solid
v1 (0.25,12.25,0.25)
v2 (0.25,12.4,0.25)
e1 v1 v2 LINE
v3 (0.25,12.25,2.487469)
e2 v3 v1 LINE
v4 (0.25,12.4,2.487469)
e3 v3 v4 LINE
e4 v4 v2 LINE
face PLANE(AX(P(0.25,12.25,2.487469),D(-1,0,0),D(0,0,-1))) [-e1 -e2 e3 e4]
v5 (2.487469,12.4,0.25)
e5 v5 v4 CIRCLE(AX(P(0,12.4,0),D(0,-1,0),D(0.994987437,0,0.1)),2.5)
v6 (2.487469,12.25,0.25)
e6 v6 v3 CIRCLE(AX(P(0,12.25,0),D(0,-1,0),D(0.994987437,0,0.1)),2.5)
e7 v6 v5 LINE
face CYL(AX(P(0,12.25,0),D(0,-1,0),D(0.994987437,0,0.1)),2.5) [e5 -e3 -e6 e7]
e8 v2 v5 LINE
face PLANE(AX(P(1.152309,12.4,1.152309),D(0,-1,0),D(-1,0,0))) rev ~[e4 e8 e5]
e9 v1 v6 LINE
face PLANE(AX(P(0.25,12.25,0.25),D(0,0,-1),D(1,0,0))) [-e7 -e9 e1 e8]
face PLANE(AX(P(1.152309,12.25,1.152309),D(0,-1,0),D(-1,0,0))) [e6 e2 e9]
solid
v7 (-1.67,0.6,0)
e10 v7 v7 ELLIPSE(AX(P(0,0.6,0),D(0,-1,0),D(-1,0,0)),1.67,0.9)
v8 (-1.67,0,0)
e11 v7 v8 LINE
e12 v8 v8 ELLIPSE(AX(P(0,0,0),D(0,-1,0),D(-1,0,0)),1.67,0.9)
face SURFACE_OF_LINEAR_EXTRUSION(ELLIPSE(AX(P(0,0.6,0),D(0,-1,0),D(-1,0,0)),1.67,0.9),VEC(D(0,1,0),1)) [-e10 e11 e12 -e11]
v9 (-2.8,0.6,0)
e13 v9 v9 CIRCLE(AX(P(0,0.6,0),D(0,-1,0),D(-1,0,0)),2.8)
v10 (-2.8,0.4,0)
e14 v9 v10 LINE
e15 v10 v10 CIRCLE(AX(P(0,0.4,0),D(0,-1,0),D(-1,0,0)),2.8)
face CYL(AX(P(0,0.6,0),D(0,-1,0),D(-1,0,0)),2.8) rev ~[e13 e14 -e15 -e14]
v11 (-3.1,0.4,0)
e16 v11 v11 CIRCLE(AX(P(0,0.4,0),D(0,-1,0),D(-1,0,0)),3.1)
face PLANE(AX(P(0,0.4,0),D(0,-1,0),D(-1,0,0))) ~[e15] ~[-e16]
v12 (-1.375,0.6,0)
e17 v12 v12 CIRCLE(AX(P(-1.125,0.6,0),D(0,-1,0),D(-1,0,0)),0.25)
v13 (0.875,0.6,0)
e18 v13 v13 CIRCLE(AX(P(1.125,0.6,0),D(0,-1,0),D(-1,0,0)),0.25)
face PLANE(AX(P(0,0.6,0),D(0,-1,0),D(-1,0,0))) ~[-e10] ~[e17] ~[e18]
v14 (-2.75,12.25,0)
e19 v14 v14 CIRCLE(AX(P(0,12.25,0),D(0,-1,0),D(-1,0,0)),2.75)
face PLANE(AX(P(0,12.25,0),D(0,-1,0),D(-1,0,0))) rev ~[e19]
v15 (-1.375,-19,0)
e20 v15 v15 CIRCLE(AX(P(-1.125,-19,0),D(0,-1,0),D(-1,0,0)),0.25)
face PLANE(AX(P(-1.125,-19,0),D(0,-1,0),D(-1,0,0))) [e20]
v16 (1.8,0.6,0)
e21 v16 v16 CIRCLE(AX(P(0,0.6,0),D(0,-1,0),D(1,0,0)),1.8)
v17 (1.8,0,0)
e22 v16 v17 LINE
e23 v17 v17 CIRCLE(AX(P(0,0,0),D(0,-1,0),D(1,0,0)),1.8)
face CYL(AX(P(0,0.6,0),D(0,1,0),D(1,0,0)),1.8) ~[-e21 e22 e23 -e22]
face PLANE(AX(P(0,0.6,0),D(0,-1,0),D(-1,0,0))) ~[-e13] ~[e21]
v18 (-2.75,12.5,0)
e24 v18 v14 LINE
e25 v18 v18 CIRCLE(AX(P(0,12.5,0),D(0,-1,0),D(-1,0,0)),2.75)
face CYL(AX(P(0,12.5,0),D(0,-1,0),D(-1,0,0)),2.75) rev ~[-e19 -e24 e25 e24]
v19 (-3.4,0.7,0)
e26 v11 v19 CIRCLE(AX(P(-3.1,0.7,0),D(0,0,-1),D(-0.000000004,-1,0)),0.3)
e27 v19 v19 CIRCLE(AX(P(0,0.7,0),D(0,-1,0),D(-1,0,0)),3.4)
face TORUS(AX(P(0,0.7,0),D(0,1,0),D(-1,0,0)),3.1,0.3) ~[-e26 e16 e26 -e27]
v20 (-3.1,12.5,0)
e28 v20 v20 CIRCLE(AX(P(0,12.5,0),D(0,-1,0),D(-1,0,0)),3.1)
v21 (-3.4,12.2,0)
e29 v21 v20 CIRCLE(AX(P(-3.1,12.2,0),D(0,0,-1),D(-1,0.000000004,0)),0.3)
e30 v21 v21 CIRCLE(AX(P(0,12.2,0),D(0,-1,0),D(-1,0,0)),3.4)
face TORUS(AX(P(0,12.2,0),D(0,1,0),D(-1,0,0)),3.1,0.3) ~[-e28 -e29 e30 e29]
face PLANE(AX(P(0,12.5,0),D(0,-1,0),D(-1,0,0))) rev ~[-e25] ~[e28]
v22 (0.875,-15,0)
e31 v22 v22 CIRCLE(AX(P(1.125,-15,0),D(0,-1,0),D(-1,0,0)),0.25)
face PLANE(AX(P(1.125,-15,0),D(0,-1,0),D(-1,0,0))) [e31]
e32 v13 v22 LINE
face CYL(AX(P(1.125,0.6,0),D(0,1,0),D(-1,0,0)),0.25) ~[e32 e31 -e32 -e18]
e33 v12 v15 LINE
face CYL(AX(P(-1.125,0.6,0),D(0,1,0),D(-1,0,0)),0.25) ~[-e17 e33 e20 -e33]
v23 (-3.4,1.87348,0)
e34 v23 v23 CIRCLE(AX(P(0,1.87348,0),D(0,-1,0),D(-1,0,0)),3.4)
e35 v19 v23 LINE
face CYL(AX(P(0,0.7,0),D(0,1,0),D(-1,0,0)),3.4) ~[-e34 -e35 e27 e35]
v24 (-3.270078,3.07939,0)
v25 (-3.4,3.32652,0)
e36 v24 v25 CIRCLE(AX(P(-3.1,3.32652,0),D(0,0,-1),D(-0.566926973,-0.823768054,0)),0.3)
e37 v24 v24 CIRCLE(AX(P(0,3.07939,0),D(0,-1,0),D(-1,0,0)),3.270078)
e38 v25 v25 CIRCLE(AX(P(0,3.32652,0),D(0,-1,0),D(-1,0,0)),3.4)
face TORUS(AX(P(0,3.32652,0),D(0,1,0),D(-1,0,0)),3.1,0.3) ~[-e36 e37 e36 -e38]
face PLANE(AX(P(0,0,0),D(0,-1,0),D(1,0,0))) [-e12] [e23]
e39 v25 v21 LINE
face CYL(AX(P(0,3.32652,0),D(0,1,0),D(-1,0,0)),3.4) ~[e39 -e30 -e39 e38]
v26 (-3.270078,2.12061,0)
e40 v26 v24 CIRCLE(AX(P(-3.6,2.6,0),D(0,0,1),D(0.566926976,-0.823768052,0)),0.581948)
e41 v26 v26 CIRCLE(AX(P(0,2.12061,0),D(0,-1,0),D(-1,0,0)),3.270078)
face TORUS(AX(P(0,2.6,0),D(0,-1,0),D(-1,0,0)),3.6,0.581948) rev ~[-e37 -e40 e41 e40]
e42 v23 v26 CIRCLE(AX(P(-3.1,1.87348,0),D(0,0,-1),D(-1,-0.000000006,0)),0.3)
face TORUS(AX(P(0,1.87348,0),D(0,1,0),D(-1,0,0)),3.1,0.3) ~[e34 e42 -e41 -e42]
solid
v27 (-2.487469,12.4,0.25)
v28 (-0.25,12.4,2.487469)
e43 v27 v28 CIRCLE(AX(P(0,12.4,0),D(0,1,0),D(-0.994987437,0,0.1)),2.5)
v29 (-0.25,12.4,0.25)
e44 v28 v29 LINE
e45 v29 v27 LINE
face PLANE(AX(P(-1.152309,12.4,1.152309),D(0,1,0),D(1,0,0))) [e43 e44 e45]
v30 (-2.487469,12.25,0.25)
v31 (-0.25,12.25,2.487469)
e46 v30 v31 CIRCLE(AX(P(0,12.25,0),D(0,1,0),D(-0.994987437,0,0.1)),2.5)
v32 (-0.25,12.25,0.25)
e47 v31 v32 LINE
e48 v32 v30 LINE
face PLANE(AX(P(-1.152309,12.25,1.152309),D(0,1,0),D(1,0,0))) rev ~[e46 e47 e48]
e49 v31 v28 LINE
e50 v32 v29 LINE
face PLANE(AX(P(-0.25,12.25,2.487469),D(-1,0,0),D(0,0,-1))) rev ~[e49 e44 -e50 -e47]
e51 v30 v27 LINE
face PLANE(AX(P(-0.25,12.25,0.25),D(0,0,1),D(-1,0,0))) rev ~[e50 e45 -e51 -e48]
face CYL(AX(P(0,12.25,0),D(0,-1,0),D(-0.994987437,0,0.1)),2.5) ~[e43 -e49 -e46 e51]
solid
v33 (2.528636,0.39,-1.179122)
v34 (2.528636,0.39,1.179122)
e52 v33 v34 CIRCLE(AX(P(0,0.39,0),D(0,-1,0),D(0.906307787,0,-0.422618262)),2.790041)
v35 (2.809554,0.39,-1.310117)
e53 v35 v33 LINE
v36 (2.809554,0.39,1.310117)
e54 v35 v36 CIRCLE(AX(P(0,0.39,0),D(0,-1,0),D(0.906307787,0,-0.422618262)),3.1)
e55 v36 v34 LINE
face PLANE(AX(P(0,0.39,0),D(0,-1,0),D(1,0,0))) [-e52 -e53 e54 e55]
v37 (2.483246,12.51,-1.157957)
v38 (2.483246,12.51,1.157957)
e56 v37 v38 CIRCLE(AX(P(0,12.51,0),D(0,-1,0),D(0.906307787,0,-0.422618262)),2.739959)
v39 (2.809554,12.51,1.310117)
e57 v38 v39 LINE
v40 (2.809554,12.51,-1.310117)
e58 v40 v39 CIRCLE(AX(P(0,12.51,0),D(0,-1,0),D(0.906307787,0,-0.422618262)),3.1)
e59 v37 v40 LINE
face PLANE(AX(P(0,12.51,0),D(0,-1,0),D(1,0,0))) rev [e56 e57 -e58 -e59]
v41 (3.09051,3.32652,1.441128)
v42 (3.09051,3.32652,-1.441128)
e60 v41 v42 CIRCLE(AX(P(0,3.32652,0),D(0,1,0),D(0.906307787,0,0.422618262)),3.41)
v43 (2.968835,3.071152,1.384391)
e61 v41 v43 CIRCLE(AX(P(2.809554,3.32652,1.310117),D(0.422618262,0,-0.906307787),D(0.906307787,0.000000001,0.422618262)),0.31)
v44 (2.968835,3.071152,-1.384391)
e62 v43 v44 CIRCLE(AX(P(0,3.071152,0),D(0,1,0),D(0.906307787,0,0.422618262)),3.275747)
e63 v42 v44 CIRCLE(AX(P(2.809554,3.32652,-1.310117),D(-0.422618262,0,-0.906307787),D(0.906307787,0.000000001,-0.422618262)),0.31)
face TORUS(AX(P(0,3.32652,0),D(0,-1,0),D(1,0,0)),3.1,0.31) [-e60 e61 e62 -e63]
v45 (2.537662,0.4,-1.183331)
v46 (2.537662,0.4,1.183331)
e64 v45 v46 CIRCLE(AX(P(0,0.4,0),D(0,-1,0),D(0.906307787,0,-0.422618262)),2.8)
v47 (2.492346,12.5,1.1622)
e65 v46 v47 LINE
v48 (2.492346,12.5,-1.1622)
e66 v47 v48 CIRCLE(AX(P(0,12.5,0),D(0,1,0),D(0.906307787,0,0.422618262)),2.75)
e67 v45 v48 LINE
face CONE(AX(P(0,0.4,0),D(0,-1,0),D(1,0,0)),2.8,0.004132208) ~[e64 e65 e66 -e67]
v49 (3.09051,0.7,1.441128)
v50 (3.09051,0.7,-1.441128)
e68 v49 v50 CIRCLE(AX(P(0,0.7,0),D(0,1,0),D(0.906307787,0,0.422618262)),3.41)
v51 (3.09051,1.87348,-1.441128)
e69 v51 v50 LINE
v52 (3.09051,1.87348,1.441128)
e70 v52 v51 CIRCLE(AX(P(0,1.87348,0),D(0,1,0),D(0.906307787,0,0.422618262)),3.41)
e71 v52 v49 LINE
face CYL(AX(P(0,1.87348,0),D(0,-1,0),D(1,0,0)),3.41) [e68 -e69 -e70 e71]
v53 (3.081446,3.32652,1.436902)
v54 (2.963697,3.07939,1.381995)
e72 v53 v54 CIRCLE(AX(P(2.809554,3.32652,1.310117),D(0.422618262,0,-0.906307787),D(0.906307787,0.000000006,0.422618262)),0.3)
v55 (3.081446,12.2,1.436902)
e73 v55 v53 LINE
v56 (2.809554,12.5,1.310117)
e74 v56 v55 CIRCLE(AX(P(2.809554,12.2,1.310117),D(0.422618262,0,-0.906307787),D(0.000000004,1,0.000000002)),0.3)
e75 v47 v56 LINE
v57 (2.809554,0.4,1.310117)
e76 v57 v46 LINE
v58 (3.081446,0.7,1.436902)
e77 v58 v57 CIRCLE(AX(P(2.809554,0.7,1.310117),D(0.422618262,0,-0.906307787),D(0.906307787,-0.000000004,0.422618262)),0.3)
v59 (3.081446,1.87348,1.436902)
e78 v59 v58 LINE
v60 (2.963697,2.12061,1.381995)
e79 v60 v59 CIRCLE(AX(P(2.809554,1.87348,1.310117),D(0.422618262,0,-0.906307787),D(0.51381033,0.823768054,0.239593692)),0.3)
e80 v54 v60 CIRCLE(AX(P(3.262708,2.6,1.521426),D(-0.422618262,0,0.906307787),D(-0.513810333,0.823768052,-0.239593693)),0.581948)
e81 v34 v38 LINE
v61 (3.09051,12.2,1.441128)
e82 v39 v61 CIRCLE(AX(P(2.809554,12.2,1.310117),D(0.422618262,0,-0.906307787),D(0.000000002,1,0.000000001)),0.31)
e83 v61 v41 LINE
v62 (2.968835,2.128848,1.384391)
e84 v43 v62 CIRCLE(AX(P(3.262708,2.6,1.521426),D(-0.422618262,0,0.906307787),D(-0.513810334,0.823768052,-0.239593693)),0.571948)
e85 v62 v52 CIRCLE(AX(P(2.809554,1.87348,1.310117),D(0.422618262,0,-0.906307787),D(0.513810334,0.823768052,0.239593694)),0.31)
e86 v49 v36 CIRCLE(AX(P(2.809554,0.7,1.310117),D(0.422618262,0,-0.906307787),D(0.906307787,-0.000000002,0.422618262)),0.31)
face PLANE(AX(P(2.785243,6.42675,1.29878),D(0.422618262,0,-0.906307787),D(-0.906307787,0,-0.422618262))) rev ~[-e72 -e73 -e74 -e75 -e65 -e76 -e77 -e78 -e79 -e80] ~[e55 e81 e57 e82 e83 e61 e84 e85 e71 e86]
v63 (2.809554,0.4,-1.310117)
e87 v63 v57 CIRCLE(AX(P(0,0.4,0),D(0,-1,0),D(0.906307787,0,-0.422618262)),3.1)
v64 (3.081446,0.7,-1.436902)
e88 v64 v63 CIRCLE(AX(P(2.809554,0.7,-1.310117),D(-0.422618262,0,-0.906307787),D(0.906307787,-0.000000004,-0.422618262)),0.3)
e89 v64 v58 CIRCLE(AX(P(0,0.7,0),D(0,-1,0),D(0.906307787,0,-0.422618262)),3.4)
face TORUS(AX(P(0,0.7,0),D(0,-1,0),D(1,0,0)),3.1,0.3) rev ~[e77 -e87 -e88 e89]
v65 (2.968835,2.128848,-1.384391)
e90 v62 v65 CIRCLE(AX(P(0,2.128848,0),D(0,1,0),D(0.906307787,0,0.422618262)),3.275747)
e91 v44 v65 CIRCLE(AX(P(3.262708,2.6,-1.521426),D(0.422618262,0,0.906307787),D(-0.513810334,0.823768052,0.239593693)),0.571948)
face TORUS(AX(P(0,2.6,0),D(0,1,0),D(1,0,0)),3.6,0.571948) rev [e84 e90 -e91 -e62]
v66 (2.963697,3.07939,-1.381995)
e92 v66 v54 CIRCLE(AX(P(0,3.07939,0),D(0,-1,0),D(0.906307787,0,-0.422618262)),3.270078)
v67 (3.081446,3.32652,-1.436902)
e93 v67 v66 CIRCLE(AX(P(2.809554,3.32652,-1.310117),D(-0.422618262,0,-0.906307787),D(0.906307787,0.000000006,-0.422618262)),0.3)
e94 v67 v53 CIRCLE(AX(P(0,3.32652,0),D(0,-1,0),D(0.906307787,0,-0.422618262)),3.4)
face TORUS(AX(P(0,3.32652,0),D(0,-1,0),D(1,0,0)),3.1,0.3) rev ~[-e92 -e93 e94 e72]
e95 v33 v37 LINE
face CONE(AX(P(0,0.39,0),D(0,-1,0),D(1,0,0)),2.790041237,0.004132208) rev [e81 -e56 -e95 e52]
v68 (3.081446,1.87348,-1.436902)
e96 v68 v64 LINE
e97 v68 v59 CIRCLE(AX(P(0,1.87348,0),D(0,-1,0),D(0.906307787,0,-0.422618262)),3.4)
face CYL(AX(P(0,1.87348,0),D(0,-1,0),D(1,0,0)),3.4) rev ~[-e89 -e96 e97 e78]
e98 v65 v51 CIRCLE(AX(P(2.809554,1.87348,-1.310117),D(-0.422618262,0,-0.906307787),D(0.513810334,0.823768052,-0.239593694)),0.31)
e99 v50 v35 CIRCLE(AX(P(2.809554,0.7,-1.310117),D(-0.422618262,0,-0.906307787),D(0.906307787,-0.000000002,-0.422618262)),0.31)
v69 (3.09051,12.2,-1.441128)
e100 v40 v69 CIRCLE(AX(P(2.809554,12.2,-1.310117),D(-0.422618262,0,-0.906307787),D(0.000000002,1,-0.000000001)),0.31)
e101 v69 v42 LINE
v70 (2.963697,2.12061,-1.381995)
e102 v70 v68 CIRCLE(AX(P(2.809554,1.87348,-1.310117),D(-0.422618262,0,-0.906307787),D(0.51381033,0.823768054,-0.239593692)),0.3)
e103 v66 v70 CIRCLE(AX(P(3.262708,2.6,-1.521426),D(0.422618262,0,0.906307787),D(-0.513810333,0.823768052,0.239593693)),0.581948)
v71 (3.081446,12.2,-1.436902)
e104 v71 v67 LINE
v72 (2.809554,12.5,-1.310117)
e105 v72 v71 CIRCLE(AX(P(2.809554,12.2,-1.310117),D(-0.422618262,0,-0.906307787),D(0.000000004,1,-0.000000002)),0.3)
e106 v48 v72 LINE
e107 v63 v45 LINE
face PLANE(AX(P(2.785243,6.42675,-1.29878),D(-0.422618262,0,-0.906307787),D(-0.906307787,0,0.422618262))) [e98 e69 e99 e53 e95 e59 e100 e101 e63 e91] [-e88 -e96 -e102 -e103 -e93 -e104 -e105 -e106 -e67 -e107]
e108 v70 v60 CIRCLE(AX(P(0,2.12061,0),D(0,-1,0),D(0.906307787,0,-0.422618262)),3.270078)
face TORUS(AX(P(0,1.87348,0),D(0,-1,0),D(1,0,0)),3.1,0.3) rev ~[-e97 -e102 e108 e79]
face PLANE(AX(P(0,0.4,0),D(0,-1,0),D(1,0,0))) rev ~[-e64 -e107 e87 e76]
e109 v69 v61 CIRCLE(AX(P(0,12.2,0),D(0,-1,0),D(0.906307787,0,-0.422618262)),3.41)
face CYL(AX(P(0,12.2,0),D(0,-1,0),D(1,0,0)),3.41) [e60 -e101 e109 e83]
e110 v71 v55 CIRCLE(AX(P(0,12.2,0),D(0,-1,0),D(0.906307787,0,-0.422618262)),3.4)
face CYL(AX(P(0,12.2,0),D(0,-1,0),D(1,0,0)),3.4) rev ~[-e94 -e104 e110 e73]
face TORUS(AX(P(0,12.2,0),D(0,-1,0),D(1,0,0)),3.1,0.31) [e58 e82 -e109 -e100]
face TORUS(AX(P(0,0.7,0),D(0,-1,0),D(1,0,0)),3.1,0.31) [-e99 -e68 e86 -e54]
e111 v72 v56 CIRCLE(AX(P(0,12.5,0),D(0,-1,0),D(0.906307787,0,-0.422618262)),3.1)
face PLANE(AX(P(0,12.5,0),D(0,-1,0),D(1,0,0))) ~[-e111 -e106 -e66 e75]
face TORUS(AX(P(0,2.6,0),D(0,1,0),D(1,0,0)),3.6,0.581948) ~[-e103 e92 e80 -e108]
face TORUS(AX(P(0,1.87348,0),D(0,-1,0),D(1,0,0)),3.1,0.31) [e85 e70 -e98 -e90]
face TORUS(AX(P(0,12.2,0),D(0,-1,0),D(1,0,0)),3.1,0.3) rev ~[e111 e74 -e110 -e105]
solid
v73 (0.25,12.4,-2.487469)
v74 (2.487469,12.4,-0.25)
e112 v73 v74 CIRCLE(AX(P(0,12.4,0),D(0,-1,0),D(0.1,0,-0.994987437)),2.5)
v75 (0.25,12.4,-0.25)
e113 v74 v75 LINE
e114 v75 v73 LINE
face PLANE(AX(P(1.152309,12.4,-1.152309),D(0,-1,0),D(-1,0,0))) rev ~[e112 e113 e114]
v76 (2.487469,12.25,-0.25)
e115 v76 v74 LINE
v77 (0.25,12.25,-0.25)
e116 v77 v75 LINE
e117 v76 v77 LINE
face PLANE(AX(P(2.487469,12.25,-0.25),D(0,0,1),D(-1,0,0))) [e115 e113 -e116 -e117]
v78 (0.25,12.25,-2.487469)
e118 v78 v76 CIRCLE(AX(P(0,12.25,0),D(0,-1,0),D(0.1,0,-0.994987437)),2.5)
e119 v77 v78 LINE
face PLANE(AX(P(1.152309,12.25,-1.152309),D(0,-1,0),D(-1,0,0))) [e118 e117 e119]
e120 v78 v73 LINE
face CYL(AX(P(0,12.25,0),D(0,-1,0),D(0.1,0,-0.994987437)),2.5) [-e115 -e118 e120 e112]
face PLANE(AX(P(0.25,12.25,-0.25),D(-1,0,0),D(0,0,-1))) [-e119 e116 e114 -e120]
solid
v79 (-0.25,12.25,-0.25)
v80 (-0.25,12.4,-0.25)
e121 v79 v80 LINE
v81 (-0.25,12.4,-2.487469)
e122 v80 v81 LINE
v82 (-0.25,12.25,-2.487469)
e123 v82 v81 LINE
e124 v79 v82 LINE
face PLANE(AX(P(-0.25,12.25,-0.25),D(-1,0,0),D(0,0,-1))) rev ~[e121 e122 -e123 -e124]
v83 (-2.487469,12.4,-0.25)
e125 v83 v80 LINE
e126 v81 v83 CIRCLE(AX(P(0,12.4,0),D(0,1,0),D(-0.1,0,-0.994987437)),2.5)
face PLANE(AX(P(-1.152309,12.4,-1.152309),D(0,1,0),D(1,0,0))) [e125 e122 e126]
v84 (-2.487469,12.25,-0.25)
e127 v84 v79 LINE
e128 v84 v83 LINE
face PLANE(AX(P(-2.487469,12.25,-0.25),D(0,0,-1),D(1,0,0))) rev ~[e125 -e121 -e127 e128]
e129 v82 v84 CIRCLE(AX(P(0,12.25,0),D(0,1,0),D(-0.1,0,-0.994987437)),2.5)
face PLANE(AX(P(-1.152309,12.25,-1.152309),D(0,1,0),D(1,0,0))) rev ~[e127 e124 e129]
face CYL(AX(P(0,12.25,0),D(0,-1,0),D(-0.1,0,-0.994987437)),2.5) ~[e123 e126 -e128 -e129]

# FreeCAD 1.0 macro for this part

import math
import FreeCAD as App
import Part
import Sketcher
from FreeCAD import Vector
Q = App.Units.Quantity

doc = App.newDocument("Part")
body = doc.addObject("PartDesign::Body", "Body")

sketch1 = body.newObject("Sketcher::SketchObject", "Sketch")
sketch1.AttachmentSupport = (doc.getObject("XY_Plane"), [""])
sketch1.MapMode = "FlatFace"
sketch1.addGeometry(Part.LineSegment(Vector(0, 0.6, 0), Vector(2.8, 0.6, 0)), False)
sketch1.addGeometry(Part.LineSegment(Vector(2.8, 0.6, 0), Vector(2.8, 0.4, 0)), False)
sketch1.addGeometry(Part.LineSegment(Vector(2.8, 0.4, 0), Vector(3.1, 0.4, 0)), False)
sketch1.addGeometry(Part.ArcOfCircle(Part.Circle(Vector(3.1, 0.7, 0), Vector(0, 0, 1), 0.3), math.radians(-90), math.radians(0)), False)
sketch1.addGeometry(Part.LineSegment(Vector(3.4, 0.7, 0), Vector(3.4, 1.87, 0)), False)
sketch1.addGeometry(Part.ArcOfCircle(Part.Circle(Vector(3.1, 1.87, 0), Vector(0, 0, 1), 0.3), math.radians(0), math.radians(55)), False)
sketch1.addGeometry(Part.ArcOfCircle(Part.Circle(Vector(3.6, 2.6, 0), Vector(0, 0, 1), 0.58), math.radians(125), math.radians(235)), False)
sketch1.addGeometry(Part.ArcOfCircle(Part.Circle(Vector(3.1, 3.33, 0), Vector(0, 0, 1), 0.3), math.radians(-55), math.radians(0)), False)
sketch1.addGeometry(Part.LineSegment(Vector(3.4, 3.33, 0), Vector(3.4, 12.2, 0)), False)
sketch1.addGeometry(Part.ArcOfCircle(Part.Circle(Vector(3.1, 12.2, 0), Vector(0, 0, 1), 0.3), math.radians(0), math.radians(90)), False)
sketch1.addGeometry(Part.LineSegment(Vector(3.1, 12.5, 0), Vector(2.75, 12.5, 0)), False)
sketch1.addGeometry(Part.LineSegment(Vector(2.75, 12.5, 0), Vector(2.75, 12.25, 0)), False)
sketch1.addGeometry(Part.LineSegment(Vector(2.75, 12.25, 0), Vector(0, 12.25, 0)), False)
sketch1.addGeometry(Part.LineSegment(Vector(0, 12.25, 0), Vector(0, 0.6, 0)), False)
sketch1.addConstraint(Sketcher.Constraint("Coincident", 0, 2, 1, 1))
sketch1.addConstraint(Sketcher.Constraint("Coincident", 1, 2, 2, 1))
sketch1.addConstraint(Sketcher.Constraint("Tangent", 2, 2, 3, 1))
sketch1.addConstraint(Sketcher.Constraint("Tangent", 3, 2, 4, 1))
sketch1.addConstraint(Sketcher.Constraint("Tangent", 4, 2, 5, 1))
sketch1.addConstraint(Sketcher.Constraint("Tangent", 5, 2, 6, 2))
sketch1.addConstraint(Sketcher.Constraint("Tangent", 6, 1, 7, 1))
sketch1.addConstraint(Sketcher.Constraint("Tangent", 7, 2, 8, 1))
sketch1.addConstraint(Sketcher.Constraint("Tangent", 8, 2, 9, 1))
sketch1.addConstraint(Sketcher.Constraint("Tangent", 9, 2, 10, 1))
sketch1.addConstraint(Sketcher.Constraint("Coincident", 10, 2, 11, 1))
sketch1.addConstraint(Sketcher.Constraint("Coincident", 11, 2, 12, 1))
sketch1.addConstraint(Sketcher.Constraint("Coincident", 12, 2, 13, 1))
sketch1.addConstraint(Sketcher.Constraint("Coincident", 13, 2, 0, 1))
sketch1.addConstraint(Sketcher.Constraint("Horizontal", 0))
sketch1.addConstraint(Sketcher.Constraint("Vertical", 1))
sketch1.addConstraint(Sketcher.Constraint("Horizontal", 2))
sketch1.addConstraint(Sketcher.Constraint("Vertical", 4))
sketch1.addConstraint(Sketcher.Constraint("Vertical", 8))
sketch1.addConstraint(Sketcher.Constraint("Horizontal", 10))
sketch1.addConstraint(Sketcher.Constraint("Vertical", 11))
sketch1.addConstraint(Sketcher.Constraint("Horizontal", 12))
sketch1.addConstraint(Sketcher.Constraint("Vertical", 13))
sketch1.addConstraint(Sketcher.Constraint("Equal", 3, 5))
sketch1.addConstraint(Sketcher.Constraint("Equal", 5, 7))
sketch1.addConstraint(Sketcher.Constraint("Equal", 7, 9))
sketch1.addConstraint(Sketcher.Constraint("PointOnObject", 12, 2, -2))
sketch1.addConstraint(Sketcher.Constraint("Vertical", 5, 3, 7, 3))
sketch1.addConstraint(Sketcher.Constraint("Radius", 3, Q("0.3 mm")))
sketch1.addConstraint(Sketcher.Constraint("DistanceX", 0, 1, 0, 2, Q("2.8 mm")))
sketch1.addConstraint(Sketcher.Constraint("DistanceX", 2, 1, 2, 2, Q("0.3 mm")))
sketch1.addConstraint(Sketcher.Constraint("DistanceY", 1, 2, 1, 1, Q("0.2 mm")))
sketch1.addConstraint(Sketcher.Constraint("DistanceY", 0, 2, 6, 3, Q("2 mm")))
sketch1.addConstraint(Sketcher.Constraint("DistanceX", 10, 2, 10, 1, Q("0.35 mm")))
sketch1.addConstraint(Sketcher.Constraint("DistanceY", 11, 2, 11, 1, Q("0.25 mm")))
sketch1.addConstraint(Sketcher.Constraint("DistanceY", 13, 2, 13, 1, Q("11.65 mm")))
sketch1.addConstraint(Sketcher.Constraint("DistanceY", -1, 1, 3, 3, Q("0.7 mm")))
sketch1.addConstraint(Sketcher.Constraint("DistanceX", -1, 1, 6, 3, Q("3.6 mm")))
sketch1.addConstraint(Sketcher.Constraint("Radius", 6, Q("0.581948 mm")))
revolution = body.newObject("PartDesign::Revolution", "Revolution")
revolution.Profile = sketch1
revolution.ReferenceAxis = (sketch1, ["V_Axis"])
revolution.Angle = 360
body2 = doc.addObject("PartDesign::Body", "Body001")

sketch2 = body2.newObject("Sketcher::SketchObject", "Sketch001")
sketch2.AttachmentSupport = (doc.getObject("XZ_Plane001"), [""])
sketch2.MapMode = "FlatFace"
sketch2.AttachmentOffset = App.Placement(Vector(0, 0, -12.25), App.Rotation())
sketch2.addGeometry(Part.LineSegment(Vector(-0.2, -0.2, 0), Vector(-0.2, -2.5, 0)), False)
sketch2.addGeometry(Part.ArcOfCircle(Part.Circle(Vector(0, 0, 0), Vector(0, 0, 1), 2.5), math.radians(-174), math.radians(-96)), False)
sketch2.addGeometry(Part.LineSegment(Vector(-2.5, -0.2, 0), Vector(-0.2, -0.2, 0)), False)
sketch2.addConstraint(Sketcher.Constraint("Coincident", 0, 2, 1, 2))
sketch2.addConstraint(Sketcher.Constraint("Coincident", 1, 1, 2, 1))
sketch2.addConstraint(Sketcher.Constraint("Coincident", 2, 2, 0, 1))
sketch2.addConstraint(Sketcher.Constraint("Vertical", 0))
sketch2.addConstraint(Sketcher.Constraint("Horizontal", 2))
sketch2.addConstraint(Sketcher.Constraint("Coincident", 1, 3, -1, 1))
sketch2.addConstraint(Sketcher.Constraint("Equal", 2, 0))
sketch2.addConstraint(Sketcher.Constraint("Radius", 1, Q("2.5 mm")))
sketch2.addConstraint(Sketcher.Constraint("DistanceX", 0, 2, -1, 1, Q("0.25 mm")))
pad1 = body2.newObject("PartDesign::Pad", "Pad")
pad1.Profile = sketch2
pad1.Length = 0.15
pad1.Reversed = True
body3 = doc.addObject("PartDesign::Body", "Body002")

sketch3 = body3.newObject("Sketcher::SketchObject", "Sketch002")
sketch3.AttachmentSupport = (doc.getObject("XZ_Plane002"), [""])
sketch3.MapMode = "FlatFace"
sketch3.AttachmentOffset = App.Placement(Vector(0, 0, -12.25), App.Rotation())
sketch3.addGeometry(Part.LineSegment(Vector(0.2, 0.2, 0), Vector(0.2, 2.5, 0)), False)
sketch3.addGeometry(Part.ArcOfCircle(Part.Circle(Vector(0, 0, 0), Vector(0, 0, 1), 2.5), math.radians(6), math.radians(84)), False)
sketch3.addGeometry(Part.LineSegment(Vector(2.5, 0.2, 0), Vector(0.2, 0.2, 0)), False)
sketch3.addConstraint(Sketcher.Constraint("Coincident", 0, 2, 1, 2))
sketch3.addConstraint(Sketcher.Constraint("Coincident", 1, 1, 2, 1))
sketch3.addConstraint(Sketcher.Constraint("Coincident", 2, 2, 0, 1))
sketch3.addConstraint(Sketcher.Constraint("Vertical", 0))
sketch3.addConstraint(Sketcher.Constraint("Horizontal", 2))
sketch3.addConstraint(Sketcher.Constraint("Coincident", 1, 3, -1, 1))
sketch3.addConstraint(Sketcher.Constraint("Equal", 2, 0))
sketch3.addConstraint(Sketcher.Constraint("Radius", 1, Q("2.5 mm")))
sketch3.addConstraint(Sketcher.Constraint("DistanceX", -1, 1, 0, 2, Q("0.25 mm")))
pad2 = body3.newObject("PartDesign::Pad", "Pad001")
pad2.Profile = sketch3
pad2.Length = 0.15
pad2.Reversed = True
body4 = doc.addObject("PartDesign::Body", "Body003")

sketch4 = body4.newObject("Sketcher::SketchObject", "Sketch003")
sketch4.AttachmentSupport = (doc.getObject("XZ_Plane003"), [""])
sketch4.MapMode = "FlatFace"
sketch4.AttachmentOffset = App.Placement(Vector(0, 0, -12.25), App.Rotation())
sketch4.addGeometry(Part.LineSegment(Vector(-0.2, 2.5, 0), Vector(-0.2, 0.2, 0)), False)
sketch4.addGeometry(Part.LineSegment(Vector(-0.2, 0.2, 0), Vector(-2.5, 0.2, 0)), False)
sketch4.addGeometry(Part.ArcOfCircle(Part.Circle(Vector(0, 0, 0), Vector(0, 0, 1), 2.5), math.radians(96), math.radians(174)), False)
sketch4.addConstraint(Sketcher.Constraint("Coincident", 0, 2, 1, 1))
sketch4.addConstraint(Sketcher.Constraint("Coincident", 1, 2, 2, 2))
sketch4.addConstraint(Sketcher.Constraint("Coincident", 2, 1, 0, 1))
sketch4.addConstraint(Sketcher.Constraint("Vertical", 0))
sketch4.addConstraint(Sketcher.Constraint("Horizontal", 1))
sketch4.addConstraint(Sketcher.Constraint("Coincident", 2, 3, -1, 1))
sketch4.addConstraint(Sketcher.Constraint("Equal", 1, 0))
sketch4.addConstraint(Sketcher.Constraint("Radius", 2, Q("2.5 mm")))
sketch4.addConstraint(Sketcher.Constraint("DistanceX", 0, 2, -1, 1, Q("0.25 mm")))
pad3 = body4.newObject("PartDesign::Pad", "Pad002")
pad3.Profile = sketch4
pad3.Length = 0.15
pad3.Reversed = True
body5 = doc.addObject("PartDesign::Body", "Body004")

sketch5 = body5.newObject("Sketcher::SketchObject", "Sketch004")
sketch5.AttachmentSupport = (doc.getObject("XZ_Plane004"), [""])
sketch5.MapMode = "FlatFace"
sketch5.AttachmentOffset = App.Placement(Vector(0, 0, -12.25), App.Rotation())
sketch5.addGeometry(Part.LineSegment(Vector(0.2, -2.5, 0), Vector(0.2, -0.2, 0)), False)
sketch5.addGeometry(Part.LineSegment(Vector(0.2, -0.2, 0), Vector(2.5, -0.2, 0)), False)
sketch5.addGeometry(Part.ArcOfCircle(Part.Circle(Vector(0, 0, 0), Vector(0, 0, 1), 2.5), math.radians(-84), math.radians(-6)), False)
sketch5.addConstraint(Sketcher.Constraint("Coincident", 0, 2, 1, 1))
sketch5.addConstraint(Sketcher.Constraint("Coincident", 1, 2, 2, 2))
sketch5.addConstraint(Sketcher.Constraint("Coincident", 2, 1, 0, 1))
sketch5.addConstraint(Sketcher.Constraint("Vertical", 0))
sketch5.addConstraint(Sketcher.Constraint("Horizontal", 1))
sketch5.addConstraint(Sketcher.Constraint("Coincident", 2, 3, -1, 1))
sketch5.addConstraint(Sketcher.Constraint("Equal", 1, 0))
sketch5.addConstraint(Sketcher.Constraint("Radius", 2, Q("2.5 mm")))
sketch5.addConstraint(Sketcher.Constraint("DistanceX", -1, 1, 0, 2, Q("0.25 mm")))
pad4 = body5.newObject("PartDesign::Pad", "Pad003")
pad4.Profile = sketch5
pad4.Length = 0.15
pad4.Reversed = True
body6 = doc.addObject("PartDesign::Body", "Body005")

sketch6 = body6.newObject("Sketcher::SketchObject", "Sketch005")
sketch6.AttachmentSupport = (doc.getObject("XZ_Plane005"), [""])
sketch6.MapMode = "FlatFace"
sketch6.AttachmentOffset = App.Placement(Vector(0, 0, -0.6), App.Rotation())
sketch6.addGeometry(Part.Circle(Vector(0, 0, 0), Vector(0, 0, 1), 1.8), False)
sketch6.addGeometry(Part.Ellipse(Vector(-1.67, 0, 0), Vector(0, -0.9, 0), Vector(0, 0, 0)), False)
sketch6.addConstraint(Sketcher.Constraint("Block", 1))
sketch6.addConstraint(Sketcher.Constraint("Coincident", 0, 3, -1, 1))
sketch6.addConstraint(Sketcher.Constraint("Diameter", 0, Q("3.6 mm")))
pad5 = body6.newObject("PartDesign::Pad", "Pad004")
pad5.Profile = sketch6
pad5.Length = 0.6
body7 = doc.addObject("PartDesign::Body", "Body006")

sketch7 = body7.newObject("Sketcher::SketchObject", "Sketch006")
sketch7.AttachmentSupport = (doc.getObject("XY_Plane006"), [""])
sketch7.MapMode = "FlatFace"
sketch7.addGeometry(Part.LineSegment(Vector(3.41, 3.33, 0), Vector(3.41, 12.2, 0)), False)
sketch7.addGeometry(Part.ArcOfCircle(Part.Circle(Vector(3.1, 12.2, 0), Vector(0, 0, 1), 0.31), math.radians(0), math.radians(90)), False)
sketch7.addGeometry(Part.LineSegment(Vector(3.1, 12.51, 0), Vector(2.74, 12.51, 0)), False)
sketch7.addGeometry(Part.LineSegment(Vector(2.74, 12.51, 0), Vector(2.79, 0.39, 0)), False)
sketch7.addGeometry(Part.LineSegment(Vector(2.79, 0.39, 0), Vector(3.1, 0.39, 0)), False)
sketch7.addGeometry(Part.ArcOfCircle(Part.Circle(Vector(3.1, 0.7, 0), Vector(0, 0, 1), 0.31), math.radians(-90), math.radians(0)), False)
sketch7.addGeometry(Part.LineSegment(Vector(3.41, 0.7, 0), Vector(3.41, 1.87, 0)), False)
sketch7.addGeometry(Part.ArcOfCircle(Part.Circle(Vector(3.1, 1.87, 0), Vector(0, 0, 1), 0.31), math.radians(0), math.radians(55)), False)
sketch7.addGeometry(Part.ArcOfCircle(Part.Circle(Vector(3.6, 2.6, 0), Vector(0, 0, 1), 0.57), math.radians(125), math.radians(235)), False)
sketch7.addGeometry(Part.ArcOfCircle(Part.Circle(Vector(3.1, 3.33, 0), Vector(0, 0, 1), 0.31), math.radians(-55), math.radians(0)), False)
sketch7.addGeometry(Part.LineSegment(Vector(2.75, 12.5, 0), Vector(3.1, 12.5, 0)), False)
sketch7.addGeometry(Part.ArcOfCircle(Part.Circle(Vector(3.1, 12.2, 0), Vector(0, 0, 1), 0.3), math.radians(0), math.radians(90)), False)
sketch7.addGeometry(Part.LineSegment(Vector(3.4, 12.2, 0), Vector(3.4, 3.33, 0)), False)
sketch7.addGeometry(Part.ArcOfCircle(Part.Circle(Vector(3.1, 3.33, 0), Vector(0, 0, 1), 0.3), math.radians(-55), math.radians(0)), False)
sketch7.addGeometry(Part.ArcOfCircle(Part.Circle(Vector(3.6, 2.6, 0), Vector(0, 0, 1), 0.58), math.radians(125), math.radians(235)), False)
sketch7.addGeometry(Part.ArcOfCircle(Part.Circle(Vector(3.1, 1.87, 0), Vector(0, 0, 1), 0.3), math.radians(0), math.radians(55)), False)
sketch7.addGeometry(Part.LineSegment(Vector(3.4, 1.87, 0), Vector(3.4, 0.7, 0)), False)
sketch7.addGeometry(Part.ArcOfCircle(Part.Circle(Vector(3.1, 0.7, 0), Vector(0, 0, 1), 0.3), math.radians(-90), math.radians(0)), False)
sketch7.addGeometry(Part.LineSegment(Vector(3.1, 0.4, 0), Vector(2.8, 0.4, 0)), False)
sketch7.addGeometry(Part.LineSegment(Vector(2.8, 0.4, 0), Vector(2.75, 12.5, 0)), False)
sketch7.addConstraint(Sketcher.Constraint("Tangent", 0, 2, 1, 1))
sketch7.addConstraint(Sketcher.Constraint("Tangent", 1, 2, 2, 1))
sketch7.addConstraint(Sketcher.Constraint("Coincident", 2, 2, 3, 1))
sketch7.addConstraint(Sketcher.Constraint("Coincident", 3, 2, 4, 1))
sketch7.addConstraint(Sketcher.Constraint("Tangent", 4, 2, 5, 1))
sketch7.addConstraint(Sketcher.Constraint("Tangent", 5, 2, 6, 1))
sketch7.addConstraint(Sketcher.Constraint("Tangent", 6, 2, 7, 1))
sketch7.addConstraint(Sketcher.Constraint("Tangent", 7, 2, 8, 2))
sketch7.addConstraint(Sketcher.Constraint("Tangent", 8, 1, 9, 1))
sketch7.addConstraint(Sketcher.Constraint("Tangent", 9, 2, 0, 1))
sketch7.addConstraint(Sketcher.Constraint("Tangent", 10, 2, 11, 2))
sketch7.addConstraint(Sketcher.Constraint("Tangent", 11, 1, 12, 1))
sketch7.addConstraint(Sketcher.Constraint("Tangent", 12, 2, 13, 2))
sketch7.addConstraint(Sketcher.Constraint("Tangent", 13, 1, 14, 1))
sketch7.addConstraint(Sketcher.Constraint("Tangent", 14, 2, 15, 2))
sketch7.addConstraint(Sketcher.Constraint("Tangent", 15, 1, 16, 1))
sketch7.addConstraint(Sketcher.Constraint("Tangent", 16, 2, 17, 2))
sketch7.addConstraint(Sketcher.Constraint("Tangent", 17, 1, 18, 1))
sketch7.addConstraint(Sketcher.Constraint("Coincident", 18, 2, 19, 1))
sketch7.addConstraint(Sketcher.Constraint("Coincident", 19, 2, 10, 1))
sketch7.addConstraint(Sketcher.Constraint("Vertical", 0))
sketch7.addConstraint(Sketcher.Constraint("Horizontal", 2))
sketch7.addConstraint(Sketcher.Constraint("Horizontal", 4))
sketch7.addConstraint(Sketcher.Constraint("Vertical", 6))
sketch7.addConstraint(Sketcher.Constraint("Horizontal", 10))
sketch7.addConstraint(Sketcher.Constraint("Vertical", 12))
sketch7.addConstraint(Sketcher.Constraint("Vertical", 16))
sketch7.addConstraint(Sketcher.Constraint("Horizontal", 18))
sketch7.addConstraint(Sketcher.Constraint("Coincident", 11, 3, 1, 3))
sketch7.addConstraint(Sketcher.Constraint("Coincident", 13, 3, 9, 3))
sketch7.addConstraint(Sketcher.Constraint("Coincident", 14, 3, 8, 3))
sketch7.addConstraint(Sketcher.Constraint("Coincident", 15, 3, 7, 3))
sketch7.addConstraint(Sketcher.Constraint("Coincident", 17, 3, 5, 3))
sketch7.addConstraint(Sketcher.Constraint("Equal", 1, 5))
sketch7.addConstraint(Sketcher.Constraint("Equal", 5, 7))
sketch7.addConstraint(Sketcher.Constraint("Equal", 7, 9))
sketch7.addConstraint(Sketcher.Constraint("Parallel", 3, 19))
sketch7.addConstraint(Sketcher.Constraint("Vertical", 1, 3, 5, 3))
sketch7.addConstraint(Sketcher.Constraint("Radius", 11, Q("0.3 mm")))
sketch7.addConstraint(Sketcher.Constraint("Radius", 1, Q("0.31 mm")))
sketch7.addConstraint(Sketcher.Constraint("DistanceX", 18, 2, 18, 1, Q("0.3 mm")))
sketch7.addConstraint(Sketcher.Constraint("DistanceX", 10, 1, 10, 2, Q("0.35 mm")))
sketch7.addConstraint(Sketcher.Constraint("DistanceX", -1, 1, 1, 3, Q("3.1 mm")))
sketch7.addConstraint(Sketcher.Constraint("DistanceY", -1, 1, 1, 3, Q("12.2 mm")))
sketch7.addConstraint(Sketcher.Constraint("DistanceY", -1, 1, 5, 3, Q("0.7 mm")))
sketch7.addConstraint(Sketcher.Constraint("DistanceX", -1, 1, 8, 3, Q("3.6 mm")))
sketch7.addConstraint(Sketcher.Constraint("DistanceY", -1, 1, 8, 3, Q("2.6 mm")))
sketch7.addConstraint(Sketcher.Constraint("Radius", 8, Q("0.571948 mm")))
sketch7.addConstraint(Sketcher.Constraint("DistanceX", 2, 2, 2, 1, Q("0.360041 mm")))
revolution2 = body7.newObject("PartDesign::Revolution", "Revolution001")
revolution2.Profile = sketch7
revolution2.ReferenceAxis = (sketch7, ["V_Axis"])
revolution2.Angle = 25

sketch8 = body7.newObject("Sketcher::SketchObject", "Sketch007")
sketch8.AttachmentSupport = (doc.getObject("XY_Plane006"), [""])
sketch8.MapMode = "FlatFace"
sketch8.addGeometry(Part.LineSegment(Vector(3.41, 3.33, 0), Vector(3.41, 12.2, 0)), False)
sketch8.addGeometry(Part.ArcOfCircle(Part.Circle(Vector(3.1, 12.2, 0), Vector(0, 0, 1), 0.31), math.radians(0), math.radians(90)), False)
sketch8.addGeometry(Part.LineSegment(Vector(3.1, 12.51, 0), Vector(2.74, 12.51, 0)), False)
sketch8.addGeometry(Part.LineSegment(Vector(2.74, 12.51, 0), Vector(2.79, 0.39, 0)), False)
sketch8.addGeometry(Part.LineSegment(Vector(2.79, 0.39, 0), Vector(3.1, 0.39, 0)), False)
sketch8.addGeometry(Part.ArcOfCircle(Part.Circle(Vector(3.1, 0.7, 0), Vector(0, 0, 1), 0.31), math.radians(-90), math.radians(0)), False)
sketch8.addGeometry(Part.LineSegment(Vector(3.41, 0.7, 0), Vector(3.41, 1.87, 0)), False)
sketch8.addGeometry(Part.ArcOfCircle(Part.Circle(Vector(3.1, 1.87, 0), Vector(0, 0, 1), 0.31), math.radians(0), math.radians(55)), False)
sketch8.addGeometry(Part.ArcOfCircle(Part.Circle(Vector(3.6, 2.6, 0), Vector(0, 0, 1), 0.57), math.radians(125), math.radians(235)), False)
sketch8.addGeometry(Part.ArcOfCircle(Part.Circle(Vector(3.1, 3.33, 0), Vector(0, 0, 1), 0.31), math.radians(-55), math.radians(0)), False)
sketch8.addGeometry(Part.LineSegment(Vector(2.75, 12.5, 0), Vector(3.1, 12.5, 0)), False)
sketch8.addGeometry(Part.ArcOfCircle(Part.Circle(Vector(3.1, 12.2, 0), Vector(0, 0, 1), 0.3), math.radians(0), math.radians(90)), False)
sketch8.addGeometry(Part.LineSegment(Vector(3.4, 12.2, 0), Vector(3.4, 3.33, 0)), False)
sketch8.addGeometry(Part.ArcOfCircle(Part.Circle(Vector(3.1, 3.33, 0), Vector(0, 0, 1), 0.3), math.radians(-55), math.radians(0)), False)
sketch8.addGeometry(Part.ArcOfCircle(Part.Circle(Vector(3.6, 2.6, 0), Vector(0, 0, 1), 0.58), math.radians(125), math.radians(235)), False)
sketch8.addGeometry(Part.ArcOfCircle(Part.Circle(Vector(3.1, 1.87, 0), Vector(0, 0, 1), 0.3), math.radians(0), math.radians(55)), False)
sketch8.addGeometry(Part.LineSegment(Vector(3.4, 1.87, 0), Vector(3.4, 0.7, 0)), False)
sketch8.addGeometry(Part.ArcOfCircle(Part.Circle(Vector(3.1, 0.7, 0), Vector(0, 0, 1), 0.3), math.radians(-90), math.radians(0)), False)
sketch8.addGeometry(Part.LineSegment(Vector(3.1, 0.4, 0), Vector(2.8, 0.4, 0)), False)
sketch8.addGeometry(Part.LineSegment(Vector(2.8, 0.4, 0), Vector(2.75, 12.5, 0)), False)
sketch8.addConstraint(Sketcher.Constraint("Tangent", 0, 2, 1, 1))
sketch8.addConstraint(Sketcher.Constraint("Tangent", 1, 2, 2, 1))
sketch8.addConstraint(Sketcher.Constraint("Coincident", 2, 2, 3, 1))
sketch8.addConstraint(Sketcher.Constraint("Coincident", 3, 2, 4, 1))
sketch8.addConstraint(Sketcher.Constraint("Tangent", 4, 2, 5, 1))
sketch8.addConstraint(Sketcher.Constraint("Tangent", 5, 2, 6, 1))
sketch8.addConstraint(Sketcher.Constraint("Tangent", 6, 2, 7, 1))
sketch8.addConstraint(Sketcher.Constraint("Tangent", 7, 2, 8, 2))
sketch8.addConstraint(Sketcher.Constraint("Tangent", 8, 1, 9, 1))
sketch8.addConstraint(Sketcher.Constraint("Tangent", 9, 2, 0, 1))
sketch8.addConstraint(Sketcher.Constraint("Tangent", 10, 2, 11, 2))
sketch8.addConstraint(Sketcher.Constraint("Tangent", 11, 1, 12, 1))
sketch8.addConstraint(Sketcher.Constraint("Tangent", 12, 2, 13, 2))
sketch8.addConstraint(Sketcher.Constraint("Tangent", 13, 1, 14, 1))
sketch8.addConstraint(Sketcher.Constraint("Tangent", 14, 2, 15, 2))
sketch8.addConstraint(Sketcher.Constraint("Tangent", 15, 1, 16, 1))
sketch8.addConstraint(Sketcher.Constraint("Tangent", 16, 2, 17, 2))
sketch8.addConstraint(Sketcher.Constraint("Tangent", 17, 1, 18, 1))
sketch8.addConstraint(Sketcher.Constraint("Coincident", 18, 2, 19, 1))
sketch8.addConstraint(Sketcher.Constraint("Coincident", 19, 2, 10, 1))
sketch8.addConstraint(Sketcher.Constraint("Vertical", 0))
sketch8.addConstraint(Sketcher.Constraint("Horizontal", 2))
sketch8.addConstraint(Sketcher.Constraint("Horizontal", 4))
sketch8.addConstraint(Sketcher.Constraint("Vertical", 6))
sketch8.addConstraint(Sketcher.Constraint("Horizontal", 10))
sketch8.addConstraint(Sketcher.Constraint("Vertical", 12))
sketch8.addConstraint(Sketcher.Constraint("Vertical", 16))
sketch8.addConstraint(Sketcher.Constraint("Horizontal", 18))
sketch8.addConstraint(Sketcher.Constraint("Coincident", 11, 3, 1, 3))
sketch8.addConstraint(Sketcher.Constraint("Coincident", 13, 3, 9, 3))
sketch8.addConstraint(Sketcher.Constraint("Coincident", 14, 3, 8, 3))
sketch8.addConstraint(Sketcher.Constraint("Coincident", 15, 3, 7, 3))
sketch8.addConstraint(Sketcher.Constraint("Coincident", 17, 3, 5, 3))
sketch8.addConstraint(Sketcher.Constraint("Equal", 1, 5))
sketch8.addConstraint(Sketcher.Constraint("Equal", 5, 7))
sketch8.addConstraint(Sketcher.Constraint("Equal", 7, 9))
sketch8.addConstraint(Sketcher.Constraint("Parallel", 3, 19))
sketch8.addConstraint(Sketcher.Constraint("Vertical", 1, 3, 5, 3))
sketch8.addConstraint(Sketcher.Constraint("Radius", 11, Q("0.3 mm")))
sketch8.addConstraint(Sketcher.Constraint("Radius", 1, Q("0.31 mm")))
sketch8.addConstraint(Sketcher.Constraint("DistanceX", 18, 2, 18, 1, Q("0.3 mm")))
sketch8.addConstraint(Sketcher.Constraint("DistanceX", 10, 1, 10, 2, Q("0.35 mm")))
sketch8.addConstraint(Sketcher.Constraint("DistanceX", -1, 1, 1, 3, Q("3.1 mm")))
sketch8.addConstraint(Sketcher.Constraint("DistanceY", -1, 1, 1, 3, Q("12.2 mm")))
sketch8.addConstraint(Sketcher.Constraint("DistanceY", -1, 1, 5, 3, Q("0.7 mm")))
sketch8.addConstraint(Sketcher.Constraint("DistanceX", -1, 1, 8, 3, Q("3.6 mm")))
sketch8.addConstraint(Sketcher.Constraint("DistanceY", -1, 1, 8, 3, Q("2.6 mm")))
sketch8.addConstraint(Sketcher.Constraint("Radius", 8, Q("0.571948 mm")))
sketch8.addConstraint(Sketcher.Constraint("DistanceX", 2, 2, 2, 1, Q("0.360041 mm")))
revolution3 = body7.newObject("PartDesign::Revolution", "Revolution002")
revolution3.Profile = sketch8
revolution3.ReferenceAxis = (sketch8, ["V_Axis"])
revolution3.Angle = 25
revolution3.Reversed = True
doc.recompute()

boolean = body.newObject("PartDesign::Boolean", "Boolean")
boolean.Type = "Fuse"
boolean.addObjects([body6])

sketch9 = body.newObject("Sketcher::SketchObject", "Sketch008")
sketch9.AttachmentSupport = (doc.getObject("XZ_Plane"), [""])
sketch9.MapMode = "FlatFace"
sketch9.AttachmentOffset = App.Placement(Vector(0, 0, -0.6), App.Rotation())
sketch9.addGeometry(Part.Circle(Vector(-1.12, 0, 0), Vector(0, 0, 1), 0.25), False)
sketch9.addConstraint(Sketcher.Constraint("PointOnObject", 0, 3, -1))
sketch9.addConstraint(Sketcher.Constraint("Diameter", 0, Q("0.5 mm")))
sketch9.addConstraint(Sketcher.Constraint("DistanceX", 0, 3, -1, 1, Q("1.125 mm")))
pad6 = body.newObject("PartDesign::Pad", "Pad005")
pad6.Profile = sketch9
pad6.Length = 19.6

sketch10 = body.newObject("Sketcher::SketchObject", "Sketch009")
sketch10.AttachmentSupport = (doc.getObject("XZ_Plane"), [""])
sketch10.MapMode = "FlatFace"
sketch10.AttachmentOffset = App.Placement(Vector(0, 0, -0.6), App.Rotation())
sketch10.addGeometry(Part.Circle(Vector(1.12, 0, 0), Vector(0, 0, 1), 0.25), False)
sketch10.addConstraint(Sketcher.Constraint("PointOnObject", 0, 3, -1))
sketch10.addConstraint(Sketcher.Constraint("Diameter", 0, Q("0.5 mm")))
sketch10.addConstraint(Sketcher.Constraint("DistanceX", -1, 1, 0, 3, Q("1.125 mm")))
pad7 = body.newObject("PartDesign::Pad", "Pad006")
pad7.Profile = sketch10
pad7.Length = 15.6

doc.recompute()
